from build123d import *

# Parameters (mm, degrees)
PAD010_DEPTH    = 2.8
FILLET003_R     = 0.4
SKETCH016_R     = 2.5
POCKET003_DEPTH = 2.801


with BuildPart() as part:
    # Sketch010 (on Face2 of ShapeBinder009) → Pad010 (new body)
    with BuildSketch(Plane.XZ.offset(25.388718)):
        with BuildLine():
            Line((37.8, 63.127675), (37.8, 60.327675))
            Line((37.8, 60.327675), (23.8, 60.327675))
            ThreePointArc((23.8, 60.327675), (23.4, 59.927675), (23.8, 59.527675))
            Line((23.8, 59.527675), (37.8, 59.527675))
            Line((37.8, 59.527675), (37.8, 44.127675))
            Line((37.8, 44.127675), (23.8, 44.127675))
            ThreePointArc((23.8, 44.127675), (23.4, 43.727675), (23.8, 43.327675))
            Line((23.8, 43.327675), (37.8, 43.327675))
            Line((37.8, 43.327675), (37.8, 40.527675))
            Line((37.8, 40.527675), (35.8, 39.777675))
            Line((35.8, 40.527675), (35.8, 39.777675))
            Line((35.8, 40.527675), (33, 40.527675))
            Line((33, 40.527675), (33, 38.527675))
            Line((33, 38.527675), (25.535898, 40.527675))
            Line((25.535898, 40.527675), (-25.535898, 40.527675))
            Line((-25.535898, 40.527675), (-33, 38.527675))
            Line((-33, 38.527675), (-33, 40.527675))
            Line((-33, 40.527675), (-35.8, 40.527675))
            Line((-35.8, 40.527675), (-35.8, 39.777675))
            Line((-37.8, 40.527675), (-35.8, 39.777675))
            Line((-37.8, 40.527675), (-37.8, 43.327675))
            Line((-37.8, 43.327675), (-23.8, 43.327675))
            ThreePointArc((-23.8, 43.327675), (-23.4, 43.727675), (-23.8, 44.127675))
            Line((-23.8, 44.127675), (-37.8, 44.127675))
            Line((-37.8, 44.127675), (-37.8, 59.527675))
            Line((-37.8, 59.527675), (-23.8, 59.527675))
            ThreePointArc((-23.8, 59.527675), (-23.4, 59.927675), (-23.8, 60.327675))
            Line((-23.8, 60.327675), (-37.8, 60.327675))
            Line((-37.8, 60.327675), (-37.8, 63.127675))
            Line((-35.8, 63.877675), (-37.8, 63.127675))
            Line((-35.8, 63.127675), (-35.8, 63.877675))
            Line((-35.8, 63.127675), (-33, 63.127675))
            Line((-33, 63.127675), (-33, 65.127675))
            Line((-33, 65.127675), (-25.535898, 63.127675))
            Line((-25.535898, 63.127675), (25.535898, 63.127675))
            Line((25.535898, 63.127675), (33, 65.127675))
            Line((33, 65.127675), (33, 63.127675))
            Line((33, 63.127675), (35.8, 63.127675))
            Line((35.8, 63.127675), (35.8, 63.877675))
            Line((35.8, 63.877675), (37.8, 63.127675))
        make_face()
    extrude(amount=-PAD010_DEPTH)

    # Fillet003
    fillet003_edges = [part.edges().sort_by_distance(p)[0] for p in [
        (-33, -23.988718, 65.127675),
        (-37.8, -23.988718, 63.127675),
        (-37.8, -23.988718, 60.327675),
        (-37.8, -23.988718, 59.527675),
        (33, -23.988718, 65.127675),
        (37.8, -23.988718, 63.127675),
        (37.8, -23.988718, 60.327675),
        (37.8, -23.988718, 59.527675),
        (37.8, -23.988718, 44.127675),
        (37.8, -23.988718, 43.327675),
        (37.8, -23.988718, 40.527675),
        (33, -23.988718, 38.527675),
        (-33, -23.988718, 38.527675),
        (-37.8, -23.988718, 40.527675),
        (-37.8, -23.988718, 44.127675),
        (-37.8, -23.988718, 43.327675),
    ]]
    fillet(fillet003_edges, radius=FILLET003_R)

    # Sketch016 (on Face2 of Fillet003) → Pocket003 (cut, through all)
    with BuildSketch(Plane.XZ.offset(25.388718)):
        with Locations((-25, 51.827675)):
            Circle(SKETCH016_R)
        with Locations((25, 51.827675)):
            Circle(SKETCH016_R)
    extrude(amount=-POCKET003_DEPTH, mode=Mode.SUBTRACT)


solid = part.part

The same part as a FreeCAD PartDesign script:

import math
import FreeCAD as App
import Part
import Sketcher
Q = App.Units.Quantity


def edges_at(feature, points):
    """Names of the edges that pass closest to the given points."""
    edges = feature.Shape.Edges
    near = lambda p: min(range(len(edges)), key=lambda i: edges[i].distToShape(Part.Vertex(*p))[0])
    return sorted({f"Edge{near(p) + 1}" for p in points})

doc = App.newDocument("Part")
body = doc.addObject("PartDesign::Body", "Body")

# Sketch on XZ plane
sketch1 = doc.addObject("Sketcher::SketchObject", "Sketch")
body.addObject(sketch1)
sketch1.AttachmentSupport = (doc.XZ_Plane, [""])
sketch1.MapMode = "FlatFace"
sketch1.AttachmentOffset = App.Placement(App.Vector(0, 0, 25.388718), App.Rotation())
sketch1.addGeometry(Part.LineSegment(App.Vector(37.8, 60.327675, 0), App.Vector(37.8, 63.127675, 0)), False)
sketch1.addGeometry(Part.LineSegment(App.Vector(37.8, 63.127675, 0), App.Vector(35.8, 63.877675, 0)), False)
sketch1.addGeometry(Part.LineSegment(App.Vector(35.8, 63.877675, 0), App.Vector(35.8, 63.127675, 0)), False)
sketch1.addGeometry(Part.LineSegment(App.Vector(35.8, 63.127675, 0), App.Vector(33, 63.127675, 0)), False)
sketch1.addGeometry(Part.LineSegment(App.Vector(33, 63.127675, 0), App.Vector(33, 65.127675, 0)), False)
sketch1.addGeometry(Part.LineSegment(App.Vector(33, 65.127675, 0), App.Vector(25.535898, 63.127675, 0)), False)
sketch1.addGeometry(Part.LineSegment(App.Vector(25.535898, 63.127675, 0), App.Vector(-25.535898, 63.127675, 0)), False)
sketch1.addGeometry(Part.LineSegment(App.Vector(-25.535898, 63.127675, 0), App.Vector(-33, 65.127675, 0)), False)
sketch1.addGeometry(Part.LineSegment(App.Vector(-33, 65.127675, 0), App.Vector(-33, 63.127675, 0)), False)
sketch1.addGeometry(Part.LineSegment(App.Vector(-33, 63.127675, 0), App.Vector(-35.8, 63.127675, 0)), False)
sketch1.addGeometry(Part.LineSegment(App.Vector(-35.8, 63.127675, 0), App.Vector(-35.8, 63.877675, 0)), False)
sketch1.addGeometry(Part.LineSegment(App.Vector(-35.8, 63.877675, 0), App.Vector(-37.8, 63.127675, 0)), False)
sketch1.addGeometry(Part.LineSegment(App.Vector(-37.8, 63.127675, 0), App.Vector(-37.8, 60.327675, 0)), False)
sketch1.addGeometry(Part.LineSegment(App.Vector(-37.8, 60.327675, 0), App.Vector(-23.8, 60.327675, 0)), False)
sketch1.addGeometry(Part.ArcOfCircle(Part.Circle(App.Vector(-23.8, 59.927675, 0), App.Vector(0, 0, 1), 0.4), math.radians(-90), math.radians(90)), False)
sketch1.addGeometry(Part.LineSegment(App.Vector(-23.8, 59.527675, 0), App.Vector(-37.8, 59.527675, 0)), False)
sketch1.addGeometry(Part.LineSegment(App.Vector(-37.8, 59.527675, 0), App.Vector(-37.8, 44.127675, 0)), False)
sketch1.addGeometry(Part.LineSegment(App.Vector(-37.8, 44.127675, 0), App.Vector(-23.8, 44.127675, 0)), False)
sketch1.addGeometry(Part.ArcOfCircle(Part.Circle(App.Vector(-23.8, 43.727675, 0), App.Vector(0, 0, 1), 0.4), math.radians(-90), math.radians(90)), False)
sketch1.addGeometry(Part.LineSegment(App.Vector(-23.8, 43.327675, 0), App.Vector(-37.8, 43.327675, 0)), False)
sketch1.addGeometry(Part.LineSegment(App.Vector(-37.8, 43.327675, 0), App.Vector(-37.8, 40.527675, 0)), False)
sketch1.addGeometry(Part.LineSegment(App.Vector(-37.8, 40.527675, 0), App.Vector(-35.8, 39.777675, 0)), False)
sketch1.addGeometry(Part.LineSegment(App.Vector(-35.8, 39.777675, 0), App.Vector(-35.8, 40.527675, 0)), False)
sketch1.addGeometry(Part.LineSegment(App.Vector(-35.8, 40.527675, 0), App.Vector(-33, 40.527675, 0)), False)
sketch1.addGeometry(Part.LineSegment(App.Vector(-33, 40.527675, 0), App.Vector(-33, 38.527675, 0)), False)
sketch1.addGeometry(Part.LineSegment(App.Vector(-33, 38.527675, 0), App.Vector(-25.535898, 40.527675, 0)), False)
sketch1.addGeometry(Part.LineSegment(App.Vector(-25.535898, 40.527675, 0), App.Vector(25.535898, 40.527675, 0)), False)
sketch1.addGeometry(Part.LineSegment(App.Vector(25.535898, 40.527675, 0), App.Vector(33, 38.527675, 0)), False)
sketch1.addGeometry(Part.LineSegment(App.Vector(33, 38.527675, 0), App.Vector(33, 40.527675, 0)), False)
sketch1.addGeometry(Part.LineSegment(App.Vector(33, 40.527675, 0), App.Vector(35.8, 40.527675, 0)), False)
sketch1.addGeometry(Part.LineSegment(App.Vector(35.8, 40.527675, 0), App.Vector(35.8, 39.777675, 0)), False)
sketch1.addGeometry(Part.LineSegment(App.Vector(35.8, 39.777675, 0), App.Vector(37.8, 40.527675, 0)), False)
sketch1.addGeometry(Part.LineSegment(App.Vector(37.8, 40.527675, 0), App.Vector(37.8, 43.327675, 0)), False)
sketch1.addGeometry(Part.LineSegment(App.Vector(37.8, 43.327675, 0), App.Vector(23.8, 43.327675, 0)), False)
sketch1.addGeometry(Part.ArcOfCircle(Part.Circle(App.Vector(23.8, 43.727675, 0), App.Vector(0, 0, 1), 0.4), math.radians(90), math.radians(270)), False)
sketch1.addGeometry(Part.LineSegment(App.Vector(23.8, 44.127675, 0), App.Vector(37.8, 44.127675, 0)), False)
sketch1.addGeometry(Part.LineSegment(App.Vector(37.8, 44.127675, 0), App.Vector(37.8, 59.527675, 0)), False)
sketch1.addGeometry(Part.LineSegment(App.Vector(37.8, 59.527675, 0), App.Vector(23.8, 59.527675, 0)), False)
sketch1.addGeometry(Part.ArcOfCircle(Part.Circle(App.Vector(23.8, 59.927675, 0), App.Vector(0, 0, 1), 0.4), math.radians(90), math.radians(270)), False)
sketch1.addGeometry(Part.LineSegment(App.Vector(23.8, 60.327675, 0), App.Vector(37.8, 60.327675, 0)), False)
sketch1.addConstraint(Sketcher.Constraint("Coincident", 0, 2, 1, 1))
sketch1.addConstraint(Sketcher.Constraint("Coincident", 1, 2, 2, 1))
sketch1.addConstraint(Sketcher.Constraint("Coincident", 2, 2, 3, 1))
sketch1.addConstraint(Sketcher.Constraint("Coincident", 3, 2, 4, 1))
sketch1.addConstraint(Sketcher.Constraint("Coincident", 4, 2, 5, 1))
sketch1.addConstraint(Sketcher.Constraint("Coincident", 5, 2, 6, 1))
sketch1.addConstraint(Sketcher.Constraint("Coincident", 6, 2, 7, 1))
sketch1.addConstraint(Sketcher.Constraint("Coincident", 7, 2, 8, 1))
sketch1.addConstraint(Sketcher.Constraint("Coincident", 8, 2, 9, 1))
sketch1.addConstraint(Sketcher.Constraint("Coincident", 9, 2, 10, 1))
sketch1.addConstraint(Sketcher.Constraint("Coincident", 10, 2, 11, 1))
sketch1.addConstraint(Sketcher.Constraint("Coincident", 11, 2, 12, 1))
sketch1.addConstraint(Sketcher.Constraint("Coincident", 12, 2, 13, 1))
sketch1.addConstraint(Sketcher.Constraint("Tangent", 13, 2, 14, 2))
sketch1.addConstraint(Sketcher.Constraint("Tangent", 14, 1, 15, 1))
sketch1.addConstraint(Sketcher.Constraint("Coincident", 15, 2, 16, 1))
sketch1.addConstraint(Sketcher.Constraint("Coincident", 16, 2, 17, 1))
sketch1.addConstraint(Sketcher.Constraint("Tangent", 17, 2, 18, 2))
sketch1.addConstraint(Sketcher.Constraint("Tangent", 18, 1, 19, 1))
sketch1.addConstraint(Sketcher.Constraint("Coincident", 19, 2, 20, 1))
sketch1.addConstraint(Sketcher.Constraint("Coincident", 20, 2, 21, 1))
sketch1.addConstraint(Sketcher.Constraint("Coincident", 21, 2, 22, 1))
sketch1.addConstraint(Sketcher.Constraint("Coincident", 22, 2, 23, 1))
sketch1.addConstraint(Sketcher.Constraint("Coincident", 23, 2, 24, 1))
sketch1.addConstraint(Sketcher.Constraint("Coincident", 24, 2, 25, 1))
sketch1.addConstraint(Sketcher.Constraint("Coincident", 25, 2, 26, 1))
sketch1.addConstraint(Sketcher.Constraint("Coincident", 26, 2, 27, 1))
sketch1.addConstraint(Sketcher.Constraint("Coincident", 27, 2, 28, 1))
sketch1.addConstraint(Sketcher.Constraint("Coincident", 28, 2, 29, 1))
sketch1.addConstraint(Sketcher.Constraint("Coincident", 29, 2, 30, 1))
sketch1.addConstraint(Sketcher.Constraint("Coincident", 30, 2, 31, 1))
sketch1.addConstraint(Sketcher.Constraint("Coincident", 31, 2, 32, 1))
sketch1.addConstraint(Sketcher.Constraint("Coincident", 32, 2, 33, 1))
sketch1.addConstraint(Sketcher.Constraint("Tangent", 33, 2, 34, 2))
sketch1.addConstraint(Sketcher.Constraint("Tangent", 34, 1, 35, 1))
sketch1.addConstraint(Sketcher.Constraint("Coincident", 35, 2, 36, 1))
sketch1.addConstraint(Sketcher.Constraint("Coincident", 36, 2, 37, 1))
sketch1.addConstraint(Sketcher.Constraint("Tangent", 37, 2, 38, 2))
sketch1.addConstraint(Sketcher.Constraint("Tangent", 38, 1, 39, 1))
sketch1.addConstraint(Sketcher.Constraint("Coincident", 39, 2, 0, 1))
sketch1.addConstraint(Sketcher.Constraint("Vertical", 0))
sketch1.addConstraint(Sketcher.Constraint("Vertical", 2))
sketch1.addConstraint(Sketcher.Constraint("Horizontal", 3))
sketch1.addConstraint(Sketcher.Constraint("Vertical", 4))
sketch1.addConstraint(Sketcher.Constraint("Horizontal", 6))
sketch1.addConstraint(Sketcher.Constraint("Vertical", 8))
sketch1.addConstraint(Sketcher.Constraint("Horizontal", 9))
sketch1.addConstraint(Sketcher.Constraint("Vertical", 10))
sketch1.addConstraint(Sketcher.Constraint("Vertical", 12))
sketch1.addConstraint(Sketcher.Constraint("Horizontal", 13))
sketch1.addConstraint(Sketcher.Constraint("Horizontal", 15))
sketch1.addConstraint(Sketcher.Constraint("Vertical", 16))
sketch1.addConstraint(Sketcher.Constraint("Horizontal", 17))
sketch1.addConstraint(Sketcher.Constraint("Horizontal", 19))
sketch1.addConstraint(Sketcher.Constraint("Vertical", 20))
sketch1.addConstraint(Sketcher.Constraint("Vertical", 22))
sketch1.addConstraint(Sketcher.Constraint("Horizontal", 23))
sketch1.addConstraint(Sketcher.Constraint("Vertical", 24))
sketch1.addConstraint(Sketcher.Constraint("Horizontal", 26))
sketch1.addConstraint(Sketcher.Constraint("Vertical", 28))
sketch1.addConstraint(Sketcher.Constraint("Horizontal", 29))
sketch1.addConstraint(Sketcher.Constraint("Vertical", 30))
sketch1.addConstraint(Sketcher.Constraint("Vertical", 32))
sketch1.addConstraint(Sketcher.Constraint("Horizontal", 33))
sketch1.addConstraint(Sketcher.Constraint("Horizontal", 35))
sketch1.addConstraint(Sketcher.Constraint("Vertical", 36))
sketch1.addConstraint(Sketcher.Constraint("Horizontal", 37))
sketch1.addConstraint(Sketcher.Constraint("Horizontal", 39))
sketch1.addConstraint(Sketcher.Constraint("Equal", 14, 18))
sketch1.addConstraint(Sketcher.Constraint("Equal", 18, 34))
sketch1.addConstraint(Sketcher.Constraint("Equal", 34, 38))
sketch1.addConstraint(Sketcher.Constraint("Symmetric", 18, 3, 34, 3, -2))
sketch1.addConstraint(Sketcher.Constraint("Symmetric", 14, 3, 38, 3, -2))
sketch1.addConstraint(Sketcher.Constraint("Symmetric", 4, 2, 7, 2, -2))
sketch1.addConstraint(Sketcher.Constraint("Symmetric", 2, 2, 9, 2, -2))
sketch1.addConstraint(Sketcher.Constraint("Symmetric", 0, 2, 11, 2, -2))
sketch1.addConstraint(Sketcher.Constraint("Symmetric", 24, 2, 27, 2, -2))
sketch1.addConstraint(Sketcher.Constraint("Symmetric", 22, 2, 29, 2, -2))
sketch1.addConstraint(Sketcher.Constraint("Symmetric", 20, 2, 31, 2, -2))
sketch1.addConstraint(Sketcher.Constraint("Parallel", 1, 21))
sketch1.addConstraint(Sketcher.Constraint("Parallel", 5, 25))
sketch1.addConstraint(Sketcher.Constraint("Parallel", 7, 27))
sketch1.addConstraint(Sketcher.Constraint("Parallel", 11, 31))
sketch1.addConstraint(Sketcher.Constraint("Horizontal", 0, 2, 2, 2))
sketch1.addConstraint(Sketcher.Constraint("Horizontal", 3, 2, 5, 2))
sketch1.addConstraint(Sketcher.Constraint("Horizontal", 1, 2, 10, 2))
sketch1.addConstraint(Sketcher.Constraint("Horizontal", 20, 2, 22, 2))
sketch1.addConstraint(Sketcher.Constraint("Horizontal", 23, 2, 25, 2))
sketch1.addConstraint(Sketcher.Constraint("Vertical", 14, 3, 18, 3))
sketch1.addConstraint(Sketcher.Constraint("Vertical", 12, 2, 15, 2))
sketch1.addConstraint(Sketcher.Constraint("Vertical", 16, 2, 19, 2))
sketch1.addConstraint(Sketcher.Constraint("Vertical", 10, 2, 21, 2))
sketch1.addConstraint(Sketcher.Constraint("Vertical", 8, 2, 23, 2))
sketch1.addConstraint(Sketcher.Constraint("Vertical", 6, 2, 25, 2))
sketch1.addConstraint(Sketcher.Constraint("Vertical", 5, 2, 26, 2))
sketch1.addConstraint(Sketcher.Constraint("Vertical", 32, 2, 35, 2))
sketch1.addConstraint(Sketcher.Constraint("Equal", 29, 0))
sketch1.addConstraint(Sketcher.Constraint("Equal", 12, 20))
sketch1.addConstraint(Sketcher.Constraint("Radius", 14, Q("0.4 mm")))
sketch1.addConstraint(Sketcher.Constraint("DistanceX", 13, 1, 13, 2, Q("14 mm")))
sketch1.addConstraint(Sketcher.Constraint("DistanceY", 4, 1, 4, 2, Q("2 mm")))
sketch1.addConstraint(Sketcher.Constraint("Angle", 5, Q("-165.000001 deg")))
sketch1.addConstraint(Sketcher.Constraint("DistanceX", 3, 2, 3, 1, Q("2.8 mm")))
sketch1.addConstraint(Sketcher.Constraint("DistanceY", 16, 2, 16, 1, Q("15.4 mm")))
sketch1.addConstraint(Sketcher.Constraint("DistanceX", -1, 1, 3, 2, Q("33 mm")))
sketch1.addConstraint(Sketcher.Constraint("DistanceX", 1, 2, 0, 2, Q("2 mm")))
sketch1.addConstraint(Sketcher.Constraint("DistanceY", 2, 2, 2, 1, Q("0.75 mm")))
sketch1.addConstraint(Sketcher.Constraint("DistanceY", -1, 1, 14, 3, Q("59.927675 mm")))
pad1 = doc.addObject("PartDesign::Pad", "Pad")
body.addObject(pad1)
pad1.Profile = sketch1
pad1.Length = 2.8
pad1.Reversed = True
doc.recompute()

fillet = doc.addObject("PartDesign::Fillet", "Fillet")
body.addObject(fillet)
fillet.Base = (pad1, edges_at(pad1, [
    (-33, -23.989, 65.128),
    (-37.8, -23.989, 63.128),
    (-37.8, -23.989, 60.328),
    (-37.8, -23.989, 59.528),
    (33, -23.989, 65.128),
    (37.8, -23.989, 63.128),
    (37.8, -23.989, 60.328),
    (37.8, -23.989, 59.528),
    (37.8, -23.989, 44.128),
    (37.8, -23.989, 43.328),
    (37.8, -23.989, 40.528),
    (33, -23.989, 38.528),
    (-33, -23.989, 38.528),
    (-37.8, -23.989, 40.528),
    (-37.8, -23.989, 44.128),
    (-37.8, -23.989, 43.328),
]))
fillet.Radius = 0.4

# Sketch on XZ plane
sketch2 = doc.addObject("Sketcher::SketchObject", "Sketch001")
body.addObject(sketch2)
sketch2.AttachmentSupport = (doc.XZ_Plane, [""])
sketch2.MapMode = "FlatFace"
sketch2.AttachmentOffset = App.Placement(App.Vector(0, 0, 25.388718), App.Rotation())
sketch2.addGeometry(Part.Circle(App.Vector(-25, 51.827675, 0), App.Vector(0, 0, 1), 2.5), False)
sketch2.addGeometry(Part.Circle(App.Vector(25, 51.827675, 0), App.Vector(0, 0, 1), 2.5), False)
sketch2.addConstraint(Sketcher.Constraint("Equal", 0, 1))
sketch2.addConstraint(Sketcher.Constraint("Symmetric", 0, 3, 1, 3, -2))
sketch2.addConstraint(Sketcher.Constraint("Diameter", 0, Q("5 mm")))
sketch2.addConstraint(Sketcher.Constraint("DistanceX", 0, 3, -1, 1, Q("25 mm")))
sketch2.addConstraint(Sketcher.Constraint("DistanceY", -1, 1, 0, 3, Q("51.827675 mm")))
pocket1 = doc.addObject("PartDesign::Pocket", "Pocket")
body.addObject(pocket1)
pocket1.Profile = sketch2
pocket1.Type = "ThroughAll"

doc.recompute()
